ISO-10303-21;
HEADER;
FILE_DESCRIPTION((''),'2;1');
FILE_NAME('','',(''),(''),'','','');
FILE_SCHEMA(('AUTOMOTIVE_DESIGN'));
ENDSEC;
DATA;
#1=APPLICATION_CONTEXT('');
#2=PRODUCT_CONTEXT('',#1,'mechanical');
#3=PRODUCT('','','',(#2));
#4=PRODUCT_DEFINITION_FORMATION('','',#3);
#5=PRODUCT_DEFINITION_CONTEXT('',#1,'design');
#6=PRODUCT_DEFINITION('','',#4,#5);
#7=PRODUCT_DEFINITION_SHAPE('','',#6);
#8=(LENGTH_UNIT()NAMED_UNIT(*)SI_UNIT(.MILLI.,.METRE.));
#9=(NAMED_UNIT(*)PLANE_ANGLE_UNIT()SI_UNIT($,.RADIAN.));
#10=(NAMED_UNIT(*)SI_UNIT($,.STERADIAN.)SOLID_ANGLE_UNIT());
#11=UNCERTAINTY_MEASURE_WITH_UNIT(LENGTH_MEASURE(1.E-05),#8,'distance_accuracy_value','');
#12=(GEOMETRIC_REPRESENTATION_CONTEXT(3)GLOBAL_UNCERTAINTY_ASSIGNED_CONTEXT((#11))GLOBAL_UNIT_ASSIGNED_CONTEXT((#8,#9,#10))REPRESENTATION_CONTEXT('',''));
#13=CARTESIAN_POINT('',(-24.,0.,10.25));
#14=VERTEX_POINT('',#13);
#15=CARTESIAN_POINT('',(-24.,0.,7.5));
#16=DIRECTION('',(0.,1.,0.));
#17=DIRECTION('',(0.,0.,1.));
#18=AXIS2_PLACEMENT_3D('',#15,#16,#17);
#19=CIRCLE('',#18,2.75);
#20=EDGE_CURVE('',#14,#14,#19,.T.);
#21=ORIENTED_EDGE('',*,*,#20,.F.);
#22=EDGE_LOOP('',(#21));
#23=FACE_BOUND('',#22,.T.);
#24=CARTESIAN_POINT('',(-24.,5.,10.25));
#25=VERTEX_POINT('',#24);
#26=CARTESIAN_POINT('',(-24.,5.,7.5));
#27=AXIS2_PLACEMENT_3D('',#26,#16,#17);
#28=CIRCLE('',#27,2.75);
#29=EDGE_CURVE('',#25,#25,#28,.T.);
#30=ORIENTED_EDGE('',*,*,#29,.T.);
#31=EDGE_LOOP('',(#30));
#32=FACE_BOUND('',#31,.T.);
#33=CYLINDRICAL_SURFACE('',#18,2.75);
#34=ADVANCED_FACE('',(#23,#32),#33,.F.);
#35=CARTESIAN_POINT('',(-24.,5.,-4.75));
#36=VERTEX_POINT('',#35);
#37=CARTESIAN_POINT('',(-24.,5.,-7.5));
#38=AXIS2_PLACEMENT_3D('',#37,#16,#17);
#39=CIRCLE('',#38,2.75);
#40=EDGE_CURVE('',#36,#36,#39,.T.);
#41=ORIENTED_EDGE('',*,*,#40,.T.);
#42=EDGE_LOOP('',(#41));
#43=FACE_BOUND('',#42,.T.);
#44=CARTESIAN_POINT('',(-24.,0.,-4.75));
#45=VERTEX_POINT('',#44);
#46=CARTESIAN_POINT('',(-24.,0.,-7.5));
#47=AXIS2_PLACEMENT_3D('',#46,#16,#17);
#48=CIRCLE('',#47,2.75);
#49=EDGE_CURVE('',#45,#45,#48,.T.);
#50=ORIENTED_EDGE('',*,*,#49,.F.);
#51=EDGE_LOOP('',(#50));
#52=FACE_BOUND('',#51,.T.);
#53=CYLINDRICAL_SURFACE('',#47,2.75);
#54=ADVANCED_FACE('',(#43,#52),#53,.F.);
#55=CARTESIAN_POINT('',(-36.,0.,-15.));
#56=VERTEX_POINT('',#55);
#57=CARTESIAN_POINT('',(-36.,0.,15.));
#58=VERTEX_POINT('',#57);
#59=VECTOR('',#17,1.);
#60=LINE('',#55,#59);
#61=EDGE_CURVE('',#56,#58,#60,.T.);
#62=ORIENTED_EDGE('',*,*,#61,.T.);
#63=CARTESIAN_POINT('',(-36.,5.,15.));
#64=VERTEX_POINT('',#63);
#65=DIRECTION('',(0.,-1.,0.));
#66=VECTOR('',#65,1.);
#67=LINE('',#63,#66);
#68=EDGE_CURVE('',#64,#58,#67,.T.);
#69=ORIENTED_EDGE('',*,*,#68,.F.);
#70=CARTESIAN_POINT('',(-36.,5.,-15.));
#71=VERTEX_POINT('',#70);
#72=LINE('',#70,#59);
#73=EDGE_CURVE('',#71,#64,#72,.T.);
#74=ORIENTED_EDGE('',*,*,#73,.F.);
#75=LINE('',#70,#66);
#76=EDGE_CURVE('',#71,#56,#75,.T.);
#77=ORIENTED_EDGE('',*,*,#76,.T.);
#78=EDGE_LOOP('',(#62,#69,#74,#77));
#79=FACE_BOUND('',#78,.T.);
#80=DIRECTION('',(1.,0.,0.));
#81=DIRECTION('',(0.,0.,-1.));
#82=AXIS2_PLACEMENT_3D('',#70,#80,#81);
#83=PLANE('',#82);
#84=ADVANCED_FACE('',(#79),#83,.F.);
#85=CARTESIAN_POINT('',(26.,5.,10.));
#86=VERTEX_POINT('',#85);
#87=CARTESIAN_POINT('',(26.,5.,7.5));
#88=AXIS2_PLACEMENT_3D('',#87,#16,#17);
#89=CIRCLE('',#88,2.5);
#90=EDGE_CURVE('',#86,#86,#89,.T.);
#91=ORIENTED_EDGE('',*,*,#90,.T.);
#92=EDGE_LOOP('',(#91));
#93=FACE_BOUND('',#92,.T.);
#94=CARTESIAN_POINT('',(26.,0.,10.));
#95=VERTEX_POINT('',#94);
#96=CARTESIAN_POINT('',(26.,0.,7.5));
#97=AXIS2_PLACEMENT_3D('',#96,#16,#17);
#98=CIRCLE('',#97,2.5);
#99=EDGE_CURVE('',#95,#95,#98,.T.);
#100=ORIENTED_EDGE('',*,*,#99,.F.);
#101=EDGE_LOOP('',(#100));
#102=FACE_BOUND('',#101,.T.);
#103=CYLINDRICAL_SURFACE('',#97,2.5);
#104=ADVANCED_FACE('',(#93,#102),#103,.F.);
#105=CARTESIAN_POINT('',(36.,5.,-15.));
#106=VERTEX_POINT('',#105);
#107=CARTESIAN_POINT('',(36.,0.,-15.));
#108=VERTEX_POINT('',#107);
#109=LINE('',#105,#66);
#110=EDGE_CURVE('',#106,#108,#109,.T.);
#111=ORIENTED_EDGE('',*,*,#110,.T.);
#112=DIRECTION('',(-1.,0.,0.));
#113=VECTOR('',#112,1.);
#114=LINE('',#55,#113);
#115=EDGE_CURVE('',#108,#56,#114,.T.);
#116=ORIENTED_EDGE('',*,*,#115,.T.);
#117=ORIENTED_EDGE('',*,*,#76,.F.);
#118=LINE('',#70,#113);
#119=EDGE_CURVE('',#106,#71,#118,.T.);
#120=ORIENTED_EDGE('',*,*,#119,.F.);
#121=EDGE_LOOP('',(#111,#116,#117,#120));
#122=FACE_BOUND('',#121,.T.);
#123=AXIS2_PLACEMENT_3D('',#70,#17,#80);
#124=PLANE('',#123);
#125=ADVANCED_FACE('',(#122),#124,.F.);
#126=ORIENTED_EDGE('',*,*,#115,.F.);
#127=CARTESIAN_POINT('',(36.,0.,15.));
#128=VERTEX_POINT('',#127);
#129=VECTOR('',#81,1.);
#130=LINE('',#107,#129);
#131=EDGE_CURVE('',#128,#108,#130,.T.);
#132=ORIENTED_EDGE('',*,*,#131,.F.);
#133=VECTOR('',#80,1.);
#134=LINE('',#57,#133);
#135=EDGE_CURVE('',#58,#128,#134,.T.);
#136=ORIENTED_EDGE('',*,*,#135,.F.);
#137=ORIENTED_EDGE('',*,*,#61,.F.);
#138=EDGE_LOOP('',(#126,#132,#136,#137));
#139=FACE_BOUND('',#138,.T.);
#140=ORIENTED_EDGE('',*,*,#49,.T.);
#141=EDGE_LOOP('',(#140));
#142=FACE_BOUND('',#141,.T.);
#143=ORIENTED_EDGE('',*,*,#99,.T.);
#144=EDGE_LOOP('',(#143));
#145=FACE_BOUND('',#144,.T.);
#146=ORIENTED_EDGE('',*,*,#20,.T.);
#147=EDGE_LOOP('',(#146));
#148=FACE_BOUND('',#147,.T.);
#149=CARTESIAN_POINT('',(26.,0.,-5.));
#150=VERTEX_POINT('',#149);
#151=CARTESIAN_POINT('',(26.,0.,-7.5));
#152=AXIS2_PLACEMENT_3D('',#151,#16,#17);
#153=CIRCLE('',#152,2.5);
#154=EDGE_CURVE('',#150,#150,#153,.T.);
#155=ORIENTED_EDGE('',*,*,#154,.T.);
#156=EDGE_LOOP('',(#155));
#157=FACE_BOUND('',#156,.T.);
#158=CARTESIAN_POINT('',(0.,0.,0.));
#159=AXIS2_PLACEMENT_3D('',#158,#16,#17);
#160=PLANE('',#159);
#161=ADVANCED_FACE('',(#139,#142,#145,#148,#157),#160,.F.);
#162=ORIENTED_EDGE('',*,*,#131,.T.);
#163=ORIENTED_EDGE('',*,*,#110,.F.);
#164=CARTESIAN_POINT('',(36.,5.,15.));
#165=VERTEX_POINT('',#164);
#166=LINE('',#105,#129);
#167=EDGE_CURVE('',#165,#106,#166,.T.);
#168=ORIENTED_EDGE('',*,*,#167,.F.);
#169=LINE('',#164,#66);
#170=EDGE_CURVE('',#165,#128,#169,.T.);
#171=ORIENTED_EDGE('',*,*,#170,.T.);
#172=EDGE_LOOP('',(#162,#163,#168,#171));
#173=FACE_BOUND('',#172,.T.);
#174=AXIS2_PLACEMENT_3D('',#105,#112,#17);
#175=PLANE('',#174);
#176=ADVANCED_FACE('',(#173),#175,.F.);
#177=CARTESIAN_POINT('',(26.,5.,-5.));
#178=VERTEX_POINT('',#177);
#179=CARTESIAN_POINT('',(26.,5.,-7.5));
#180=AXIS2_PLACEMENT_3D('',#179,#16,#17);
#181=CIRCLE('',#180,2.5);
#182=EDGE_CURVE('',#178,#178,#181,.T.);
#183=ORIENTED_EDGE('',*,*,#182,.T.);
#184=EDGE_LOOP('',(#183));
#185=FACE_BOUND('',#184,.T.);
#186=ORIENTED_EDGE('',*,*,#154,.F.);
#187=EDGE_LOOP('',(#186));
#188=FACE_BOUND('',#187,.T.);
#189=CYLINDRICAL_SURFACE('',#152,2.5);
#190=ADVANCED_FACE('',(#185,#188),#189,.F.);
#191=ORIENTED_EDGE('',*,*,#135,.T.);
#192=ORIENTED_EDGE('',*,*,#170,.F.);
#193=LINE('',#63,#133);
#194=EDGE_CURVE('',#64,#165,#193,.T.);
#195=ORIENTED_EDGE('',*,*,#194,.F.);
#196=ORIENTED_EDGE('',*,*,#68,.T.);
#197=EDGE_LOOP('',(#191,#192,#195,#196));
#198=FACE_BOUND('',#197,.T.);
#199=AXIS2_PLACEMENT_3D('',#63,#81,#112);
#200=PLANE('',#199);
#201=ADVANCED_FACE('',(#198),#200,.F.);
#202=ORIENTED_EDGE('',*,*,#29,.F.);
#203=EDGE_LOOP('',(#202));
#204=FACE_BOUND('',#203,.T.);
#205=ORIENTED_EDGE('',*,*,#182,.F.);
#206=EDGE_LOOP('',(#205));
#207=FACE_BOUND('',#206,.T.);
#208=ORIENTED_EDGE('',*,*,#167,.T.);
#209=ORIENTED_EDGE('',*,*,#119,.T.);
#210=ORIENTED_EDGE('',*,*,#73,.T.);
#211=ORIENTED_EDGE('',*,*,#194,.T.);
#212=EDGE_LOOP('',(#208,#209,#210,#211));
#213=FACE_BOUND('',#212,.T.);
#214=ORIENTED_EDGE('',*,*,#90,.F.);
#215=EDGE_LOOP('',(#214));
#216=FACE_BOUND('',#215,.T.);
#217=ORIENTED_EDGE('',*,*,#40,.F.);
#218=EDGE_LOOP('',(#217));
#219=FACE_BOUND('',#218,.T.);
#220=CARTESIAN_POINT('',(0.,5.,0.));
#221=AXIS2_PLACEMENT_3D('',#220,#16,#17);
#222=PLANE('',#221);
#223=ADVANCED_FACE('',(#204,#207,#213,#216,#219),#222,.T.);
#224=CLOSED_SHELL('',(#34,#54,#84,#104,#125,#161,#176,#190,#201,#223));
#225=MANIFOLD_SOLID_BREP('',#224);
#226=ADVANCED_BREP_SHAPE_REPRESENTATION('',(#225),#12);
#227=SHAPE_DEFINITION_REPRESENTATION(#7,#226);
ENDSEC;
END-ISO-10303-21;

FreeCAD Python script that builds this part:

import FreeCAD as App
import Part
import Sketcher
from FreeCAD import Vector

doc = App.newDocument("Part")
body = doc.addObject("PartDesign::Body", "Body")

# Sketch on XZ plane
sketch1 = body.newObject("Sketcher::SketchObject", "Sketch")
sketch1.AttachmentSupport = (doc.getObject("XZ_Plane"), [""])
sketch1.MapMode = "FlatFace"
sketch1.addGeometry(Part.LineSegment(Vector(-36, -15, 0), Vector(-36, 15, 0)), False)
sketch1.addGeometry(Part.LineSegment(Vector(-36, 15, 0), Vector(36, 15, 0)), False)
sketch1.addGeometry(Part.LineSegment(Vector(36, 15, 0), Vector(36, -15, 0)), False)
sketch1.addGeometry(Part.LineSegment(Vector(36, -15, 0), Vector(-36, -15, 0)), False)
sketch1.addConstraint(Sketcher.Constraint("Coincident", 0, 2, 1, 1))
sketch1.addConstraint(Sketcher.Constraint("Coincident", 1, 2, 2, 1))
sketch1.addConstraint(Sketcher.Constraint("Coincident", 2, 2, 3, 1))
sketch1.addConstraint(Sketcher.Constraint("Coincident", 3, 2, 0, 1))
sketch1.addConstraint(Sketcher.Constraint("Vertical", 0))
sketch1.addConstraint(Sketcher.Constraint("Horizontal", 1))
sketch1.addConstraint(Sketcher.Constraint("Vertical", 2))
sketch1.addConstraint(Sketcher.Constraint("Horizontal", 3))
sketch1.addConstraint(Sketcher.Constraint("Symmetric", 0, 2, 2, 2, -1, 1))
sketch1.addConstraint(Sketcher.Constraint("DistanceX", 1, 1, 1, 2, 72.0))
sketch1.addConstraint(Sketcher.Constraint("DistanceY", 0, 1, 0, 2, 30.0))
pad1 = body.newObject("PartDesign::Pad", "Pad")
pad1.Profile = sketch1
pad1.Length = 5
pad1.Reversed = True

# Sketch on XZ plane
sketch2 = body.newObject("Sketcher::SketchObject", "Sketch001")
sketch2.AttachmentSupport = (doc.getObject("XZ_Plane"), [""])
sketch2.MapMode = "FlatFace"
sketch2.AttachmentOffset = App.Placement(Vector(0, 0, -5), App.Rotation())
sketch2.addGeometry(Part.Circle(Vector(-24, -7.5, 0), Vector(0, 0, 1), 2.8), False)
sketch2.addGeometry(Part.Circle(Vector(-24, 7.5, 0), Vector(0, 0, 1), 2.8), False)
sketch2.addGeometry(Part.Circle(Vector(26, -7.5, 0), Vector(0, 0, 1), 2.5), False)
sketch2.addGeometry(Part.Circle(Vector(26, 7.5, 0), Vector(0, 0, 1), 2.5), False)
sketch2.addConstraint(Sketcher.Constraint("Equal", 0, 1))
sketch2.addConstraint(Sketcher.Constraint("Equal", 2, 3))
sketch2.addConstraint(Sketcher.Constraint("Symmetric", 0, 3, 1, 3, -1))
sketch2.addConstraint(Sketcher.Constraint("Symmetric", 2, 3, 3, 3, -1))
sketch2.addConstraint(Sketcher.Constraint("Horizontal", 0, 3, 2, 3))
sketch2.addConstraint(Sketcher.Constraint("Diameter", 2, 5.0))
sketch2.addConstraint(Sketcher.Constraint("Diameter", 0, 5.5))
sketch2.addConstraint(Sketcher.Constraint("DistanceX", 0, 3, -1, 1, 24.0))
sketch2.addConstraint(Sketcher.Constraint("DistanceX", -1, 1, 2, 3, 26.0))
sketch2.addConstraint(Sketcher.Constraint("DistanceY", 0, 3, 1, 3, 15.0))
pocket1 = body.newObject("PartDesign::Pocket", "Pocket")
pocket1.Profile = sketch2
pocket1.Type = "ThroughAll"
pocket1.Reversed = True

doc.recompute()
